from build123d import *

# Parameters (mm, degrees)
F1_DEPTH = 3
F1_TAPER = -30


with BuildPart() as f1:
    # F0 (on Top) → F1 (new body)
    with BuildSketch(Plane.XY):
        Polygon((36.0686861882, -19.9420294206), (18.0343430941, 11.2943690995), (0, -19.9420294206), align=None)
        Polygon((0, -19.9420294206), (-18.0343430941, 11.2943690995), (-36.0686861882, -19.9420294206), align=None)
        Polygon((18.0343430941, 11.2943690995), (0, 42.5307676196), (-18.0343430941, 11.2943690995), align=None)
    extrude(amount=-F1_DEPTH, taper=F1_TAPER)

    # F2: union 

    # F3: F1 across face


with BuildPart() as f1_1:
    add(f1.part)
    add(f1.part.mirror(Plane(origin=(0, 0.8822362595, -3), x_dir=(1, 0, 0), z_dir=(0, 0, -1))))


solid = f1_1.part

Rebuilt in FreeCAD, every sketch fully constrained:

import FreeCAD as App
import Part
import Sketcher
Q = App.Units.Quantity


def add_polygon(sketch, points):
    """Adds a closed chain of lines whose ends are joined by coincident constraints."""
    first, n = sketch.GeometryCount, len(points)
    for a, b in zip(points, points[1:] + points[:1]):
        sketch.addGeometry(Part.LineSegment(App.Vector(*a, 0), App.Vector(*b, 0)), False)
    for i in range(n):
        sketch.addConstraint(Sketcher.Constraint("Coincident", first + i, 2, first + (i + 1) % n, 1))

doc = App.newDocument("Part")
body = doc.addObject("PartDesign::Body", "Body")

sketch1 = body.newObject("Sketcher::SketchObject", "Sketch")
sketch1.AttachmentSupport = (doc.getObject("XY_Plane"), [""])
sketch1.MapMode = "FlatFace"
add_polygon(sketch1, [(36, -20), (18, 11), (0, -20)])
add_polygon(sketch1, [(0, -20), (-18, 11), (-36, -20)])
add_polygon(sketch1, [(18, 11), (0, 43), (-18, 11)])
sketch1.addConstraint([
    Sketcher.Constraint("Horizontal", 2),
    Sketcher.Constraint("Horizontal", 5),
    Sketcher.Constraint("Horizontal", 8),
    Sketcher.Constraint("Coincident", 5, 2, 1, 2),
    Sketcher.Constraint("Coincident", 7, 2, 3, 2),
    Sketcher.Constraint("Coincident", 8, 2, 0, 2),
    Sketcher.Constraint("PointOnObject", 1, 2, -2),
    Sketcher.Constraint("PointOnObject", 6, 2, -2),
    Sketcher.Constraint("Parallel", 0, 3),
    Sketcher.Constraint("Parallel", 1, 4),
    Sketcher.Constraint("Parallel", 3, 6),
    Sketcher.Constraint("Parallel", 4, 7),
    Sketcher.Constraint("Angle", 0, Q("120 deg")),
    Sketcher.Constraint("DistanceY", 1, 2, 0, 2, 31.236399),
    Sketcher.Constraint("DistanceY", -1, 1, 0, 2, 11.294369),
])
pad1 = body.newObject("PartDesign::Pad", "Pad")
pad1.Profile = sketch1
pad1.Length = 3
pad1.Reversed = True
pad1.TaperAngle = 30
body2 = doc.addObject("PartDesign::Body", "Body001")
doc.recompute()

body2.BaseFeature = body
doc.recompute()

mirroring = doc.addObject("Part::Mirroring", "Mirroring")
mirroring.Source = body
mirroring.Base = App.Vector(0, 0.882236, -3)
mirroring.Normal = App.Vector(0, 0, -1)
body3 = doc.addObject("PartDesign::Body", "Body002")
body3.BaseFeature = mirroring
boolean = body2.newObject("PartDesign::Boolean", "Boolean")
boolean.Type = "Fuse"
boolean.addObjects([body3])
doc.recompute()
mirroring.Visibility = False

doc.recompute()
